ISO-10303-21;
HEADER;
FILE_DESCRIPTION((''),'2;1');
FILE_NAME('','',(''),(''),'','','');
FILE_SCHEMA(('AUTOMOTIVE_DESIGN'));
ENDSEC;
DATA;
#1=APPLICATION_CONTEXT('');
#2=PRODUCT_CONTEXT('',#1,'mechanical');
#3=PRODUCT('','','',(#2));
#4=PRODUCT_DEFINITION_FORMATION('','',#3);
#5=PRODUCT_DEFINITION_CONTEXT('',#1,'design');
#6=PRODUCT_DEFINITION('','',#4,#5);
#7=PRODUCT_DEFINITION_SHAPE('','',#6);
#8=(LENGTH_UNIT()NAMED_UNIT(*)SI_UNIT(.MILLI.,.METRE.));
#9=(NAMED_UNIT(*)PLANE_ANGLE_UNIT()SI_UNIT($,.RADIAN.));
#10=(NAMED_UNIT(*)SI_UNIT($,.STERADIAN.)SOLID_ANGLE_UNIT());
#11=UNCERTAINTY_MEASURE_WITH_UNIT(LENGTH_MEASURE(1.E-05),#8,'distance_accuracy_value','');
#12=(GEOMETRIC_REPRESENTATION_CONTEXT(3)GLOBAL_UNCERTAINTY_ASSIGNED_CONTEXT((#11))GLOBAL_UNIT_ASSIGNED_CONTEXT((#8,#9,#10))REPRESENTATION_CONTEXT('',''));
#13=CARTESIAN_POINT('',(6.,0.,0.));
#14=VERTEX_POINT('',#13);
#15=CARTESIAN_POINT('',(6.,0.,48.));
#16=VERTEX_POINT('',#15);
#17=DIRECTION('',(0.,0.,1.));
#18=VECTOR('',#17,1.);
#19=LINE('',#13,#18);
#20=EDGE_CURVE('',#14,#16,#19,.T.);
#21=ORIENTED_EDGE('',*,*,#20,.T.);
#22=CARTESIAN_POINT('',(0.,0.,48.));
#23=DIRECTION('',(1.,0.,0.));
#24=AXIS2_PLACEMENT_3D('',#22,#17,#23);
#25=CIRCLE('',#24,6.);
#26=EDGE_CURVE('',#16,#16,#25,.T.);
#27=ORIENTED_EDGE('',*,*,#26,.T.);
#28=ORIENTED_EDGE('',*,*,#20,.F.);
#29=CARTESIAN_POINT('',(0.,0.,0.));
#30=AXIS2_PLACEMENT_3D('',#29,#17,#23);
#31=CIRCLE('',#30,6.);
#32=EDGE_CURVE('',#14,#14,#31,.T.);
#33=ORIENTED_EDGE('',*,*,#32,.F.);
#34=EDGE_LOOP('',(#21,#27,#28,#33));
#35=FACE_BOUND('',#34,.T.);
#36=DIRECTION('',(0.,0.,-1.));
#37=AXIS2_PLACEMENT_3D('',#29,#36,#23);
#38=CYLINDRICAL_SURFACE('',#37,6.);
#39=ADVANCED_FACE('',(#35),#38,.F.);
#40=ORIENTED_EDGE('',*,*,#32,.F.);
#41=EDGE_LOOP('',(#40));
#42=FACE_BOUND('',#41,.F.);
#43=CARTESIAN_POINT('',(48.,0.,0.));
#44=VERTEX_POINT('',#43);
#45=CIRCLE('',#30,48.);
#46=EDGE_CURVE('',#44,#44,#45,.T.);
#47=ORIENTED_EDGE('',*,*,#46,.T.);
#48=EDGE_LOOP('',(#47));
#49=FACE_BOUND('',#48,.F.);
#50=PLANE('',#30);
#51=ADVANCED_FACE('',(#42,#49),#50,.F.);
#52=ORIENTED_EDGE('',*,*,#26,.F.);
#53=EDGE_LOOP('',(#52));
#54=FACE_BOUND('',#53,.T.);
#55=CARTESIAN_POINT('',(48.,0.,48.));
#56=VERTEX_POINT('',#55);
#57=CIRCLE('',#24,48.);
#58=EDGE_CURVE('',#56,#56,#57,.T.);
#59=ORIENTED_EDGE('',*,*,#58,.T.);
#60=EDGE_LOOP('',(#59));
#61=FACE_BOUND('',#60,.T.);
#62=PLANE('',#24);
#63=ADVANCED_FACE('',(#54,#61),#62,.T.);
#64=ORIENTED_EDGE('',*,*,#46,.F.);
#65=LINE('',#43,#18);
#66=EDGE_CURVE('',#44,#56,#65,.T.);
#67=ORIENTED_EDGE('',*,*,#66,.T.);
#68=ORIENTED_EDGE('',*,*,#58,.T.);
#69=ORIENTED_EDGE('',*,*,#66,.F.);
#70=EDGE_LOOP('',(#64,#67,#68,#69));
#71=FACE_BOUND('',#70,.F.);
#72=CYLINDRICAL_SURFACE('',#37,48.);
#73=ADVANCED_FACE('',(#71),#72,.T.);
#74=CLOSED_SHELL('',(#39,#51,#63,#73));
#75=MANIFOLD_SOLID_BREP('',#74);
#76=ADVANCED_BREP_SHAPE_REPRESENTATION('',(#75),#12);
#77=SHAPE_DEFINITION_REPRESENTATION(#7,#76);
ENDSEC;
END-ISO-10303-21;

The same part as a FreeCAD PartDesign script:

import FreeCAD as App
import Part
import Sketcher

V = App.Vector
Q = App.Units.Quantity

doc = App.newDocument("Part")
body = doc.addObject("PartDesign::Body", "Body")

sketch1 = body.newObject("Sketcher::SketchObject", "Sketch")
sketch1.AttachmentSupport = (doc.getObject("XY_Plane"), [""])
sketch1.MapMode = "FlatFace"
sketch1.addGeometry(Part.Circle(V(0, 0, 0), V(0, 0, 1), 48), False)
sketch1.addGeometry(Part.Circle(V(0, 0, 0), V(0, 0, 1), 6), False)
sketch1.addConstraint(Sketcher.Constraint("Coincident", 0, 3, -1, 1))
sketch1.addConstraint(Sketcher.Constraint("Coincident", 1, 3, -1, 1))
sketch1.addConstraint(Sketcher.Constraint("Diameter", 0, Q("96 mm")))
sketch1.addConstraint(Sketcher.Constraint("Diameter", 1, Q("12 mm")))
pad1 = body.newObject("PartDesign::Pad", "Pad")
pad1.Profile = sketch1
pad1.Length = 48

doc.recompute()
